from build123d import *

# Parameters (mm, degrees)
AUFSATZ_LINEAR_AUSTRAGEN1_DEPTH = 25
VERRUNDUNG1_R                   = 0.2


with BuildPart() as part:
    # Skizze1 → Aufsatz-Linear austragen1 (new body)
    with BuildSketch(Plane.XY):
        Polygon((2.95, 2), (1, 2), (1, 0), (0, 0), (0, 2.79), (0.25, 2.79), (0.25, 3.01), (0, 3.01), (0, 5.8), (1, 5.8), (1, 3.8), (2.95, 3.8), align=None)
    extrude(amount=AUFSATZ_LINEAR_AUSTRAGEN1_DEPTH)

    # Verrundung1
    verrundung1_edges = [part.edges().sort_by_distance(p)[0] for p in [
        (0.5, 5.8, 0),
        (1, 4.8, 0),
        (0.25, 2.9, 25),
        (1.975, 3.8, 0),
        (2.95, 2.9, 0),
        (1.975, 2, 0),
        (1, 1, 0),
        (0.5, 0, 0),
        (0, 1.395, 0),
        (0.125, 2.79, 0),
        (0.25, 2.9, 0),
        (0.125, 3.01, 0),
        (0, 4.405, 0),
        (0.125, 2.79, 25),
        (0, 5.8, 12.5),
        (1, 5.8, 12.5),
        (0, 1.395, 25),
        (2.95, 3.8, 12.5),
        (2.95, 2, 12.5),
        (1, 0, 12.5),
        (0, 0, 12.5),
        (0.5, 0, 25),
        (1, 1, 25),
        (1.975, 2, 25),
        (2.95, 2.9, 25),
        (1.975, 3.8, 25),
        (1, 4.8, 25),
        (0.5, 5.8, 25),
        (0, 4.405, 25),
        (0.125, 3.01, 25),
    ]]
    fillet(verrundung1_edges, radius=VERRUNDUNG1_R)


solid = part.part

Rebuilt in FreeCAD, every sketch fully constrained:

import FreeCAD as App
import Part
import Sketcher


def edges_at(feature, points):
    """Names of the edges that pass closest to the given points."""
    edges = feature.Shape.Edges
    near = lambda p: min(range(len(edges)), key=lambda i: edges[i].distToShape(Part.Vertex(*p))[0])
    return sorted({f"Edge{near(p) + 1}" for p in points})


def add_polygon(sketch, points):
    """Adds a closed chain of lines whose ends are joined by coincident constraints."""
    first, n = sketch.GeometryCount, len(points)
    for a, b in zip(points, points[1:] + points[:1]):
        sketch.addGeometry(Part.LineSegment(App.Vector(*a, 0), App.Vector(*b, 0)), False)
    for i in range(n):
        sketch.addConstraint(Sketcher.Constraint("Coincident", first + i, 2, first + (i + 1) % n, 1))

doc = App.newDocument("Part")
body = doc.addObject("PartDesign::Body", "Body")

# Sketch on XY plane
sketch1 = body.newObject("Sketcher::SketchObject", "Sketch")
sketch1.AttachmentSupport = (doc.getObject("XY_Plane"), [""])
sketch1.MapMode = "FlatFace"
add_polygon(sketch1, [(1, 2), (2.95, 2), (2.95, 3.8), (1, 3.8), (1, 5.8), (0, 5.8), (0, 3.01), (0.25, 3.01), (0.25, 2.79), (0, 2.79), (0, 0), (1, 0)])  # lines 0-11
sketch1.addConstraint(Sketcher.Constraint("Horizontal", 0))
sketch1.addConstraint(Sketcher.Constraint("Vertical", 1))
sketch1.addConstraint(Sketcher.Constraint("Horizontal", 2))
sketch1.addConstraint(Sketcher.Constraint("Vertical", 3))
sketch1.addConstraint(Sketcher.Constraint("Horizontal", 4))
sketch1.addConstraint(Sketcher.Constraint("Vertical", 5))
sketch1.addConstraint(Sketcher.Constraint("Horizontal", 6))
sketch1.addConstraint(Sketcher.Constraint("Vertical", 7))
sketch1.addConstraint(Sketcher.Constraint("Horizontal", 8))
sketch1.addConstraint(Sketcher.Constraint("Vertical", 9))
sketch1.addConstraint(Sketcher.Constraint("Horizontal", 10))
sketch1.addConstraint(Sketcher.Constraint("Vertical", 11))
sketch1.addConstraint(Sketcher.Constraint("Coincident", 9, 2, -1, 1))
sketch1.addConstraint(Sketcher.Constraint("PointOnObject", 4, 2, -2))
sketch1.addConstraint(Sketcher.Constraint("Vertical", 3, 2, 10, 2))
sketch1.addConstraint(Sketcher.Constraint("Equal", 5, 9))
sketch1.addConstraint(Sketcher.Constraint("Equal", 3, 11))
sketch1.addConstraint(Sketcher.Constraint("DistanceX", 4, 2, 4, 1, 1.0))
sketch1.addConstraint(Sketcher.Constraint("DistanceY", 3, 1, 3, 2, 2.0))
sketch1.addConstraint(Sketcher.Constraint("DistanceY", 1, 1, 1, 2, 1.8))
sketch1.addConstraint(Sketcher.Constraint("DistanceX", 0, 1, 0, 2, 1.95))
sketch1.addConstraint(Sketcher.Constraint("DistanceX", 6, 1, 6, 2, 0.25))
sketch1.addConstraint(Sketcher.Constraint("DistanceY", 5, 2, 5, 1, 2.79))
pad1 = body.newObject("PartDesign::Pad", "Pad")
pad1.Profile = sketch1
pad1.Length = 25
doc.recompute()

fillet = body.newObject("PartDesign::Fillet", "Fillet")
fillet.Base = (pad1, edges_at(pad1, [
    (0.5, 5.8, 0),
    (1, 4.8, 0),
    (0.25, 2.9, 25),
    (1.975, 3.8, 0),
    (2.95, 2.9, 0),
    (1.975, 2, 0),
    (1, 1, 0),
    (0.5, 0, 0),
    (0, 1.395, 0),
    (0.125, 2.79, 0),
    (0.25, 2.9, 0),
    (0.125, 3.01, 0),
    (0, 4.405, 0),
    (0.125, 2.79, 25),
    (0, 5.8, 12.5),
    (1, 5.8, 12.5),
    (0, 1.395, 25),
    (2.95, 3.8, 12.5),
    (2.95, 2, 12.5),
    (1, 0, 12.5),
    (0, 0, 12.5),
    (0.5, 0, 25),
    (1, 1, 25),
    (1.975, 2, 25),
    (2.95, 2.9, 25),
    (1.975, 3.8, 25),
    (1, 4.8, 25),
    (0.5, 5.8, 25),
    (0, 4.405, 25),
    (0.125, 3.01, 25),
]))
fillet.Radius = 0.2

doc.recompute()
